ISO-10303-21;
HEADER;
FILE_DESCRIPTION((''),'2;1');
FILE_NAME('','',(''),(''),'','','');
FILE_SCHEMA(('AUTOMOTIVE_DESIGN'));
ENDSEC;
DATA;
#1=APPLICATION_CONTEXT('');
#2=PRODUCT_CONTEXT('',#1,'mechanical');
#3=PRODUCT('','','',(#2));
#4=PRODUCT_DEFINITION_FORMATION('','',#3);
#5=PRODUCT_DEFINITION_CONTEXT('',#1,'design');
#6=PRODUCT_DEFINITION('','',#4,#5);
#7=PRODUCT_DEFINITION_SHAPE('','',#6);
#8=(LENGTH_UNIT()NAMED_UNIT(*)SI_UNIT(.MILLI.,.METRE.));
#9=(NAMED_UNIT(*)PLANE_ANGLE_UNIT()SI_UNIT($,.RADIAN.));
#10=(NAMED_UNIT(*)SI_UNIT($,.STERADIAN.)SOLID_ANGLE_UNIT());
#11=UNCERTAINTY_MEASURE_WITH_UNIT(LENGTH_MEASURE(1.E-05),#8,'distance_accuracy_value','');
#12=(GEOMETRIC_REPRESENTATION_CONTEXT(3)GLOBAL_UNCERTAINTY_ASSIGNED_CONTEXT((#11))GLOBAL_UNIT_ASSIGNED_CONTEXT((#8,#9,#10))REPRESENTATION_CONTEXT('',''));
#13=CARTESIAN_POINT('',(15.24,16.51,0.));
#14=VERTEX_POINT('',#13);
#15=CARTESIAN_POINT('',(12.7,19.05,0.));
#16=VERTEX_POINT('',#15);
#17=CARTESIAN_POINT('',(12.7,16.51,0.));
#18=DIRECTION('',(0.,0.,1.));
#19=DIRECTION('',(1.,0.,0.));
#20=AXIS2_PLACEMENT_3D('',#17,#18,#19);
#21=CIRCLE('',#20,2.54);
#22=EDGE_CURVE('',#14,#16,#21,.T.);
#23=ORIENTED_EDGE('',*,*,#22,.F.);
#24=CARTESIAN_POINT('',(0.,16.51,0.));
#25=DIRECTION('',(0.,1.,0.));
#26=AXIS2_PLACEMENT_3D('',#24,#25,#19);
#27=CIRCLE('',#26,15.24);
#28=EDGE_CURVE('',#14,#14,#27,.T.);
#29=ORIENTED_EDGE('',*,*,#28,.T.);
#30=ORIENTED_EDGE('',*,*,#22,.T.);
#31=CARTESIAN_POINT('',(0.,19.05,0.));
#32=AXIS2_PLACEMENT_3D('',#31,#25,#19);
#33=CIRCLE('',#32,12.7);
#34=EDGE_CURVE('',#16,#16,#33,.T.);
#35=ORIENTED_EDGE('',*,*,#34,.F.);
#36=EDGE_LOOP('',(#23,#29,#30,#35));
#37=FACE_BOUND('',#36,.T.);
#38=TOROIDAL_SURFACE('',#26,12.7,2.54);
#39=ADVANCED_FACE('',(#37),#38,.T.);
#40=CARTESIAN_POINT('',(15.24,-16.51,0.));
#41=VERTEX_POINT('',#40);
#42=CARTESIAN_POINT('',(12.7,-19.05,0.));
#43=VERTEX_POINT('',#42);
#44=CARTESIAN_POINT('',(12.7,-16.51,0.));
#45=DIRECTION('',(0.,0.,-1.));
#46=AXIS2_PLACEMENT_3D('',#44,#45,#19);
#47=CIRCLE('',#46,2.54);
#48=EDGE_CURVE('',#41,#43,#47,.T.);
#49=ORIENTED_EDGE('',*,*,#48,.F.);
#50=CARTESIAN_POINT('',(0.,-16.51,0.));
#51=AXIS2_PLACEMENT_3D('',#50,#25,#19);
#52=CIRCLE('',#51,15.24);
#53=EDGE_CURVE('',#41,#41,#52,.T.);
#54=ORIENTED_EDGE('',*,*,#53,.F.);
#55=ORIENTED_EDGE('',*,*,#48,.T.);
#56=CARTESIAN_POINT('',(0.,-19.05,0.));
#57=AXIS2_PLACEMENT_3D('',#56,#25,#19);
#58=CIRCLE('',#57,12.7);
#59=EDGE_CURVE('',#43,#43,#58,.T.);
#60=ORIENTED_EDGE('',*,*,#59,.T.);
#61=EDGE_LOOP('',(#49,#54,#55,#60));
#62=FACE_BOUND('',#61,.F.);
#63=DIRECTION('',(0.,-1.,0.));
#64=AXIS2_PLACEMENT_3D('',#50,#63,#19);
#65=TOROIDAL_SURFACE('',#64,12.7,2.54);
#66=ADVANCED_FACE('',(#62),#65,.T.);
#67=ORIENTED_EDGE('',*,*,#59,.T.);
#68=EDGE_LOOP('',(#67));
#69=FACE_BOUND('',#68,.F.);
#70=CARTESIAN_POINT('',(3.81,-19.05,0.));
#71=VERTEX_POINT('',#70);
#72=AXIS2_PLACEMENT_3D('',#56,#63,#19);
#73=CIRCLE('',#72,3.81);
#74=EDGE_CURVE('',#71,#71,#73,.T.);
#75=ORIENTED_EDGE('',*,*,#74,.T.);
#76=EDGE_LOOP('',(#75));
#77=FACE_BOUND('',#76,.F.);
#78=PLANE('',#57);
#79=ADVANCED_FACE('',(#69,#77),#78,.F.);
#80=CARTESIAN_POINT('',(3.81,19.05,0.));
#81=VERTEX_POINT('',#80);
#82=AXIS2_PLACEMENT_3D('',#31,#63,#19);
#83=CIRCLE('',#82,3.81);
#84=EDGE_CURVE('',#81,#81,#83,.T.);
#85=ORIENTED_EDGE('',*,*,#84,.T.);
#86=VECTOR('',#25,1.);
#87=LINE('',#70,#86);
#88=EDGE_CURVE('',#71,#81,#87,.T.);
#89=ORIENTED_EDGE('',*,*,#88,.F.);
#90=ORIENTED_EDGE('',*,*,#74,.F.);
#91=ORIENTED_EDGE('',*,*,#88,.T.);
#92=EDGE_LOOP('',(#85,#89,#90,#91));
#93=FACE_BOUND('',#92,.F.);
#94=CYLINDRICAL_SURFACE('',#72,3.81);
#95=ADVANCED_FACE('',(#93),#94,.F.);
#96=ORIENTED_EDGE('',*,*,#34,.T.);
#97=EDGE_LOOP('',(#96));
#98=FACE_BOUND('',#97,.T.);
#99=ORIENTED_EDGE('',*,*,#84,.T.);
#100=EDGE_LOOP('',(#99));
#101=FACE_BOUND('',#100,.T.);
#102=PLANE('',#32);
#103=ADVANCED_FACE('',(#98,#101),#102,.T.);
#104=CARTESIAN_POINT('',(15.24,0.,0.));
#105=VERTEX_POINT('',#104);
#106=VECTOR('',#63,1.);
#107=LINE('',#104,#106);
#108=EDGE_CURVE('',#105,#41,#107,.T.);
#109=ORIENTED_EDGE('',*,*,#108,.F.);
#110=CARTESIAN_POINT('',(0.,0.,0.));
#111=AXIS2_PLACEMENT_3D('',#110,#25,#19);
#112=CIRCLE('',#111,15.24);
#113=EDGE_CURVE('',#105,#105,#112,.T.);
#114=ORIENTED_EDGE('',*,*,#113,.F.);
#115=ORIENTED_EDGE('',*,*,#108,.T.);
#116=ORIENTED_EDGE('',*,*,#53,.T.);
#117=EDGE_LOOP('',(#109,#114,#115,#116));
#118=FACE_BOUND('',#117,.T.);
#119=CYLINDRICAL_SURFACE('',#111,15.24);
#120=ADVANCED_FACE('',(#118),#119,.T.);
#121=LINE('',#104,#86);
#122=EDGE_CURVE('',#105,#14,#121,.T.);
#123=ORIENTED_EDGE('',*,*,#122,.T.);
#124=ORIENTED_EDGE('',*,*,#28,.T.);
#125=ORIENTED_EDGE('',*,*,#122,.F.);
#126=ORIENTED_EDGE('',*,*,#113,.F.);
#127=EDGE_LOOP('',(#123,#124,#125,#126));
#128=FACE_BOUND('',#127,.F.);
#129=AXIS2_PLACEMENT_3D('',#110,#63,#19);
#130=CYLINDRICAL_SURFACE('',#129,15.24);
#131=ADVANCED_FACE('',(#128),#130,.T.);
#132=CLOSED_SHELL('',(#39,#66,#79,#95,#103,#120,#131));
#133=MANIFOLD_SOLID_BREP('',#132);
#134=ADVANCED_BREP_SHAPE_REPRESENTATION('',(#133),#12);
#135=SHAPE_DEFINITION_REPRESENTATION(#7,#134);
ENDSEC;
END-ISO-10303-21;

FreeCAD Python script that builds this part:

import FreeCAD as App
import Part
import Sketcher

V = App.Vector
Q = App.Units.Quantity


def edges_at(feature, points):
    """Names of the edges that pass closest to the given points."""
    edges = feature.Shape.Edges
    near = lambda p: min(range(len(edges)), key=lambda i: edges[i].distToShape(Part.Vertex(*p))[0])
    return sorted({f"Edge{near(p) + 1}" for p in points})

doc = App.newDocument("Part")
params = doc.addObject("Spreadsheet::Sheet", "Params")
for row, (alias, value) in enumerate([
    ("sketch1_diameter", "1.2 in"),
    ("pad1_length", "1.5 in"),
    ("fillet_radius", "0.1 in"),
    ("sketch2_diameter", "0.3 in"),
], start=1):
    params.set(f"A{row}", alias)
    params.set(f"B{row}", "=" + value)
    params.setAlias(f"B{row}", alias)

body = doc.addObject("PartDesign::Body", "Body")

# Sketch on XZ plane
sketch1 = doc.addObject("Sketcher::SketchObject", "Sketch")
body.addObject(sketch1)
sketch1.AttachmentSupport = (doc.XZ_Plane, [""])
sketch1.MapMode = "FlatFace"
sketch1.addGeometry(Part.Circle(V(0, 0, 0), V(0, 0, 1), 15), False)
sketch1.addConstraint(Sketcher.Constraint("Coincident", 0, 3, -1, 1))
sketch1.addConstraint(Sketcher.Constraint("Diameter", 0, Q("1.2 in")))
sketch1.setExpression("Constraints[1]", "Params.sketch1_diameter")
pad1 = doc.addObject("PartDesign::Pad", "Pad")
body.addObject(pad1)
pad1.Profile = sketch1
pad1.setExpression("Length", "Params.pad1_length")
pad1.Midplane = True
doc.recompute()

fillet = doc.addObject("PartDesign::Fillet", "Fillet")
body.addObject(fillet)
fillet.Base = (pad1, edges_at(pad1, [(-14.209, -19.05, -5.511), (-14.209, 19.05, 5.511)]))
fillet.setExpression("Radius", "Params.fillet_radius")

# Sketch on XZ plane
sketch2 = doc.addObject("Sketcher::SketchObject", "Sketch001")
body.addObject(sketch2)
sketch2.AttachmentSupport = (doc.XZ_Plane, [""])
sketch2.MapMode = "FlatFace"
sketch2.AttachmentOffset = App.Placement(V(0, 0, 0.75 * 25.4), App.Rotation())
sketch2.addGeometry(Part.Circle(V(0, 0, 0), V(0, 0, 1), 3.8), False)
sketch2.addConstraint(Sketcher.Constraint("Coincident", 0, 3, -1, 1))
sketch2.addConstraint(Sketcher.Constraint("Diameter", 0, Q("0.3 in")))
sketch2.setExpression("Constraints[1]", "Params.sketch2_diameter")
pocket1 = doc.addObject("PartDesign::Pocket", "Pocket")
body.addObject(pocket1)
pocket1.Profile = sketch2
pocket1.Type = "ThroughAll"

doc.recompute()
